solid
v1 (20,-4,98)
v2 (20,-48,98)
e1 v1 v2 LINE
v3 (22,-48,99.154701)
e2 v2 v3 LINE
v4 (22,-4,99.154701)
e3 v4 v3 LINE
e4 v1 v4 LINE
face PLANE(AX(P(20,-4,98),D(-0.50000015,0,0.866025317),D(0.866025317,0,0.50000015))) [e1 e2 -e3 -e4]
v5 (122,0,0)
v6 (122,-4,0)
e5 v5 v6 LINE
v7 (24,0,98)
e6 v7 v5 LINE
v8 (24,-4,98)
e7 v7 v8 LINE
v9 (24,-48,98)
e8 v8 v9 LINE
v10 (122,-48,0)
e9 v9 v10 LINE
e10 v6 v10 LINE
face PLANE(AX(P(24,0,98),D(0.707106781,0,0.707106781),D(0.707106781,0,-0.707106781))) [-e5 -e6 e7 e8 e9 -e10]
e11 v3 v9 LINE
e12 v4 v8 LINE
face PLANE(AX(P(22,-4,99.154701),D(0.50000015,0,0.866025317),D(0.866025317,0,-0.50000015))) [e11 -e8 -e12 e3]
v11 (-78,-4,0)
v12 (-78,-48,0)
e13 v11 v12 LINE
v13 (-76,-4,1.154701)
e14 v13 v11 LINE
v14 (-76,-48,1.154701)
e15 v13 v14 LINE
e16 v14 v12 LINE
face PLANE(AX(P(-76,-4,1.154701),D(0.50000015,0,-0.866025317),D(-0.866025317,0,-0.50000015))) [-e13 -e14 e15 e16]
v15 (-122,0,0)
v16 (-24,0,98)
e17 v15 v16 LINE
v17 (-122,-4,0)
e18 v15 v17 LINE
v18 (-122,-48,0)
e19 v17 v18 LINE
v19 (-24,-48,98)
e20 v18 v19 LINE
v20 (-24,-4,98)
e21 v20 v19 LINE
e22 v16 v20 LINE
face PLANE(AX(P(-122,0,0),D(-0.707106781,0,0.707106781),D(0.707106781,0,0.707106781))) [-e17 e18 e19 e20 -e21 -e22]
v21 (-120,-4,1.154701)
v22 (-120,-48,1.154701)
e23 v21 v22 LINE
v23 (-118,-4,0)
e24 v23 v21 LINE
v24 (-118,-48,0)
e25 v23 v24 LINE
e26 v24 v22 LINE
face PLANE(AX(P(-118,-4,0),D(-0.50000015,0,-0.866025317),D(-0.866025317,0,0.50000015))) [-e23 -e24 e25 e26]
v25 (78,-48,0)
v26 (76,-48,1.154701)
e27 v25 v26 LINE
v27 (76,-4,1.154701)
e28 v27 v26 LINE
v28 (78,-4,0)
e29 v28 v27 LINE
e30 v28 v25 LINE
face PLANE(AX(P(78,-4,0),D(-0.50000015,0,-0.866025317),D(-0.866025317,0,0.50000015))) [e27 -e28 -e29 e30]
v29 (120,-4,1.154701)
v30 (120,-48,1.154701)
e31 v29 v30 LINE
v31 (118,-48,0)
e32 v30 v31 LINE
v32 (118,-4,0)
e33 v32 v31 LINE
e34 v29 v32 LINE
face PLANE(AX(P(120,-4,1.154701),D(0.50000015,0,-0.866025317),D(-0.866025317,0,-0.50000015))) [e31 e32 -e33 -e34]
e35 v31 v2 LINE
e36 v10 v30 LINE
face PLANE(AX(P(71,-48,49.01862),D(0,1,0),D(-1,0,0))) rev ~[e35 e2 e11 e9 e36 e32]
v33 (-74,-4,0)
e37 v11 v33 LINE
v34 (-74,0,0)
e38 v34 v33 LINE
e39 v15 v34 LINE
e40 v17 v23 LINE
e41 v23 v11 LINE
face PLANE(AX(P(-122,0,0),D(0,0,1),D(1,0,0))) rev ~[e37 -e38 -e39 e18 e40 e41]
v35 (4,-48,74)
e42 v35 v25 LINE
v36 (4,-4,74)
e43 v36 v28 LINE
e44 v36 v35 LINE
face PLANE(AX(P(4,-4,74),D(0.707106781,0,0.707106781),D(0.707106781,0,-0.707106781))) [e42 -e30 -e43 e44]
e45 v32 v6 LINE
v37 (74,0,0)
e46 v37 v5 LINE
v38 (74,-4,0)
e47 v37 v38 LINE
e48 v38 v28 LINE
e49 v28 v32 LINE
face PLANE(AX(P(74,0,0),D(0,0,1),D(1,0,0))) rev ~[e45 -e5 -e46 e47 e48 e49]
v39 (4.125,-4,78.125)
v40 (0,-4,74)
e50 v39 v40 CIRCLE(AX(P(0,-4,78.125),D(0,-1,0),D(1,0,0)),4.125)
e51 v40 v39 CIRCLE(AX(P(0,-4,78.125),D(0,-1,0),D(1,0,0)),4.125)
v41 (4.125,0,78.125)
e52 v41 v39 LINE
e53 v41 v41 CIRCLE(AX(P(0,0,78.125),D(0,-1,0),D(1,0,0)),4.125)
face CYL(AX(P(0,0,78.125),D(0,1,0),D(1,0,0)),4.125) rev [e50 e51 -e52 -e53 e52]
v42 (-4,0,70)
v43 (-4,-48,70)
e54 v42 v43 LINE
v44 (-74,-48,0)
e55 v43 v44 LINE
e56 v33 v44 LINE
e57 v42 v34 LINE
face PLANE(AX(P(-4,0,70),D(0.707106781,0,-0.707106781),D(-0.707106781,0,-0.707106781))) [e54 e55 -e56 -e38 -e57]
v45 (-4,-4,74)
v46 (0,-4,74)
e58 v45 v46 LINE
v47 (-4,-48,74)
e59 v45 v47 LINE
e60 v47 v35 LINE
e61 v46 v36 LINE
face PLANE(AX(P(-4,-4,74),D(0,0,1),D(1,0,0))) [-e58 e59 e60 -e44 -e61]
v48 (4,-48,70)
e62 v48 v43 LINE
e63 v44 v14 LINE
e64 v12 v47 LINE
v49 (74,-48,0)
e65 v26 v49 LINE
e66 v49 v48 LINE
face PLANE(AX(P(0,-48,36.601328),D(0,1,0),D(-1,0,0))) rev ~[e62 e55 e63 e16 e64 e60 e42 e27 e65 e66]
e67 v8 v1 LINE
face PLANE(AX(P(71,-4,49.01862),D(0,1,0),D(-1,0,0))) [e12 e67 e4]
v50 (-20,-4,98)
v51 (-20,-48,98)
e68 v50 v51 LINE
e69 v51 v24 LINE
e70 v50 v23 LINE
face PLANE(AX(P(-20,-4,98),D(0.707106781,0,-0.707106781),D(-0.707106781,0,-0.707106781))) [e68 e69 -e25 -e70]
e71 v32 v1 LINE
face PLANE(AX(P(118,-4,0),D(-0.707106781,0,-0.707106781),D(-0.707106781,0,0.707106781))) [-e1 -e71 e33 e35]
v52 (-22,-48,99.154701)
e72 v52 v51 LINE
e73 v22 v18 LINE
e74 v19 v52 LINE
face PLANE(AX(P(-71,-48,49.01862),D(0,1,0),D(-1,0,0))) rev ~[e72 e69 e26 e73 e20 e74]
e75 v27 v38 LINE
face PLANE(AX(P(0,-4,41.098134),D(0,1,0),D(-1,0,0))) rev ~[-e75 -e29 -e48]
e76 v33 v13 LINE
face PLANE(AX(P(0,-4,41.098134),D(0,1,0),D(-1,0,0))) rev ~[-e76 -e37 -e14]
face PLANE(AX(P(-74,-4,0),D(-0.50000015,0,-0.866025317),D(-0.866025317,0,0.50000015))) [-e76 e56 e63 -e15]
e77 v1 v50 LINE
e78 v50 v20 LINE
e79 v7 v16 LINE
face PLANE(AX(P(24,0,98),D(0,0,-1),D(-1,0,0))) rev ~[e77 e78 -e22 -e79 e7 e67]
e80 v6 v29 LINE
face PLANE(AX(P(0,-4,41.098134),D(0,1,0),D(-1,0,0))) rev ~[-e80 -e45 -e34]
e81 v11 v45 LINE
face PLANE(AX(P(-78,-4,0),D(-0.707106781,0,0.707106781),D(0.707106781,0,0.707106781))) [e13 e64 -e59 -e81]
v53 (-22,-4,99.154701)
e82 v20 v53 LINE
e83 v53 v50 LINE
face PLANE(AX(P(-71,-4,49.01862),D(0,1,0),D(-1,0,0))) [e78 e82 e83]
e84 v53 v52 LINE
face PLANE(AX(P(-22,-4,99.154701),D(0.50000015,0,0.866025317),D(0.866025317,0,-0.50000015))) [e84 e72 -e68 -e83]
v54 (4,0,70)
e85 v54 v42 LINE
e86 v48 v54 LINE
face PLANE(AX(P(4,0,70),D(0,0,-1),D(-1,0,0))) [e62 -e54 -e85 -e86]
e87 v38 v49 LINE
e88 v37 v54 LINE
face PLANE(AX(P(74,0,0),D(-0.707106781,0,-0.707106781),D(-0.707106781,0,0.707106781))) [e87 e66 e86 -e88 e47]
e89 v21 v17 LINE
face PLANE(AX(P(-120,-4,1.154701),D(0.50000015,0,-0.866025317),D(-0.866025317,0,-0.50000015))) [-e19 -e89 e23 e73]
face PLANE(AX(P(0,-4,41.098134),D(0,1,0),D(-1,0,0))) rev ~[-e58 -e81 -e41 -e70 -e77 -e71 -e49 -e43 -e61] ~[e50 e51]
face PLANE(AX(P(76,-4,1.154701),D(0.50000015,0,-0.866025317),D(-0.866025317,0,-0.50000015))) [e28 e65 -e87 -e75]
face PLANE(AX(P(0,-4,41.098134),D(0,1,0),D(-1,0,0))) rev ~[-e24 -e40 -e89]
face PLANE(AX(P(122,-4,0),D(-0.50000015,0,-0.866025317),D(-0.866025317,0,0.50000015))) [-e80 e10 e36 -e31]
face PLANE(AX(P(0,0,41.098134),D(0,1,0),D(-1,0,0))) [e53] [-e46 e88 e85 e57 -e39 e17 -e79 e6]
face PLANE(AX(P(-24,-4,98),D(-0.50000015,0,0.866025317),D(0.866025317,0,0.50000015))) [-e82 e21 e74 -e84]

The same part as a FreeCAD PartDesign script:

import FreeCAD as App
import Part
import Sketcher

V = App.Vector
Q = App.Units.Quantity


def add_polygon(sketch, points):
    """Adds a closed chain of lines whose ends are joined by coincident constraints."""
    first, n = sketch.GeometryCount, len(points)
    for a, b in zip(points, points[1:] + points[:1]):
        sketch.addGeometry(Part.LineSegment(App.Vector(*a, 0), App.Vector(*b, 0)), False)
    for i in range(n):
        sketch.addConstraint(Sketcher.Constraint("Coincident", first + i, 2, first + (i + 1) % n, 1))

doc = App.newDocument("Part")
body = doc.addObject("PartDesign::Body", "Body")

# Sketch on XZ plane
sketch1 = doc.addObject("Sketcher::SketchObject", "Sketch")
body.addObject(sketch1)
sketch1.AttachmentSupport = (doc.XZ_Plane, [""])
sketch1.MapMode = "FlatFace"
add_polygon(sketch1, [(24, 98), (-24, 98), (-122, 0), (-74, 0), (-4, 70), (4, 70), (74, 0), (122, 0)])  # lines 0-7
sketch1.addGeometry(Part.Circle(V(0, 78.1, 0), V(0, 0, 1), 4.1), False)  # 8
sketch1.addConstraint(Sketcher.Constraint("Horizontal", 0))
sketch1.addConstraint(Sketcher.Constraint("Horizontal", 2))
sketch1.addConstraint(Sketcher.Constraint("Horizontal", 4))
sketch1.addConstraint(Sketcher.Constraint("Horizontal", 6))
sketch1.addConstraint(Sketcher.Constraint("Symmetric", 2, 2, 5, 2, -1, 1))
sketch1.addConstraint(Sketcher.Constraint("Symmetric", 1, 2, 6, 2, -2))
sketch1.addConstraint(Sketcher.Constraint("PointOnObject", 8, 3, -2))
sketch1.addConstraint(Sketcher.Constraint("Parallel", 1, 3))
sketch1.addConstraint(Sketcher.Constraint("Perpendicular", 3, 5))
sketch1.addConstraint(Sketcher.Constraint("Parallel", 5, 7))
sketch1.addConstraint(Sketcher.Constraint("Equal", 0, 2))
sketch1.addConstraint(Sketcher.Constraint("Equal", 3, 5))
sketch1.addConstraint(Sketcher.Constraint("Diameter", 8, 8.25))
sketch1.addConstraint(Sketcher.Constraint("DistanceX", 0, 2, 0, 1, 48.0))
sketch1.addConstraint(Sketcher.Constraint("DistanceX", 4, 1, 4, 2, 8.0))
sketch1.addConstraint(Sketcher.Constraint("DistanceY", -1, 1, 0, 2, 98.0))
sketch1.addConstraint(Sketcher.Constraint("DistanceY", -1, 1, 8, 3, 78.125))
pad1 = doc.addObject("PartDesign::Pad", "Pad")
body.addObject(pad1)
pad1.Profile = sketch1
pad1.Length = 4
body2 = doc.addObject("PartDesign::Body", "Body001")
body2.AllowCompound = True

# Sketch on XZ plane
sketch2 = doc.addObject("Sketcher::SketchObject", "Sketch001")
body2.addObject(sketch2)
sketch2.AttachmentSupport = (doc.getObject("XZ_Plane001"), [""])
sketch2.MapMode = "FlatFace"
add_polygon(sketch2, [(-118, 0), (-20, 98), (-22, 99.2), (-24, 98), (-122, 0), (-120, 1.2)])  # lines 0-5
add_polygon(sketch2, [(20, 98), (118, 0), (120, 1.2), (122, 0), (24, 98), (22, 99.2)])  # lines 6-11
add_polygon(sketch2, [(-74, 0), (-4, 70), (4, 70), (74, 0), (76, 1.2), (78, 0), (4, 74), (-4, 74), (-78, 0), (-76, 1.2)])  # lines 12-21
sketch2.addConstraint(Sketcher.Constraint("Horizontal", 13))
sketch2.addConstraint(Sketcher.Constraint("Horizontal", 18))
sketch2.addConstraint(Sketcher.Constraint("Symmetric", 5, 2, 6, 2, -1, 1))
sketch2.addConstraint(Sketcher.Constraint("Symmetric", 3, 2, 8, 2, -1, 1))
sketch2.addConstraint(Sketcher.Constraint("Symmetric", 16, 2, 19, 2, -1, 1))
sketch2.addConstraint(Sketcher.Constraint("Symmetric", 14, 2, 21, 2, -1, 1))
sketch2.addConstraint(Sketcher.Constraint("Symmetric", 4, 2, 7, 2, -2))
sketch2.addConstraint(Sketcher.Constraint("Symmetric", 2, 2, 9, 2, -2))
sketch2.addConstraint(Sketcher.Constraint("Symmetric", 1, 2, 10, 2, -2))
sketch2.addConstraint(Sketcher.Constraint("Symmetric", 0, 2, 11, 2, -2))
sketch2.addConstraint(Sketcher.Constraint("Symmetric", 15, 2, 20, 2, -2))
sketch2.addConstraint(Sketcher.Constraint("PointOnObject", 3, 2, -1))
sketch2.addConstraint(Sketcher.Constraint("PointOnObject", 5, 2, -1))
sketch2.addConstraint(Sketcher.Constraint("PointOnObject", 14, 2, -1))
sketch2.addConstraint(Sketcher.Constraint("PointOnObject", 16, 2, -1))
sketch2.addConstraint(Sketcher.Constraint("Parallel", 0, 3))
sketch2.addConstraint(Sketcher.Constraint("Parallel", 2, 4))
sketch2.addConstraint(Sketcher.Constraint("Parallel", 1, 5))
sketch2.addConstraint(Sketcher.Constraint("Perpendicular", 3, 6))
sketch2.addConstraint(Sketcher.Constraint("Parallel", 4, 7))
sketch2.addConstraint(Sketcher.Constraint("Perpendicular", 9, 12))
sketch2.addConstraint(Sketcher.Constraint("Perpendicular", 12, 14))
sketch2.addConstraint(Sketcher.Constraint("Parallel", 11, 15))
sketch2.addConstraint(Sketcher.Constraint("Parallel", 10, 16))
sketch2.addConstraint(Sketcher.Constraint("Parallel", 14, 17))
sketch2.addConstraint(Sketcher.Constraint("Perpendicular", 17, 19))
sketch2.addConstraint(Sketcher.Constraint("Horizontal", 0, 2, 2, 2))
sketch2.addConstraint(Sketcher.Constraint("Horizontal", 7, 2, 15, 2))
sketch2.addConstraint(Sketcher.Constraint("Vertical", 13, 2, 17, 2))
sketch2.addConstraint(Sketcher.Constraint("DistanceX", 13, 1, 13, 2, 8.0))
sketch2.addConstraint(Sketcher.Constraint("Angle", 1, Q("149.99999 deg")))
sketch2.addConstraint(Sketcher.Constraint("DistanceX", 0, 2, -1, 1, 20.0))
sketch2.addConstraint(Sketcher.Constraint("DistanceY", -1, 1, 0, 2, 98.0))
sketch2.addConstraint(Sketcher.Constraint("DistanceX", 1, 2, -1, 1, 22.0))
sketch2.addConstraint(Sketcher.Constraint("DistanceY", -1, 1, 12, 2, 70.0))
pad2 = doc.addObject("PartDesign::Pad", "Pad001")
body2.addObject(pad2)
pad2.Profile = sketch2
pad2.Length = 44
body3 = doc.addObject("PartDesign::Body", "Body002")
body3.AllowCompound = True
doc.recompute()

body2.Placement = App.Placement(V(0, -4, 0), App.Rotation(V(0, 0, 1), 0))
boolean = doc.addObject("PartDesign::Boolean", "Boolean")
body3.addObject(boolean)
boolean.Type = "Fuse"
boolean.addObjects([body2])
doc.recompute()

boolean2 = doc.addObject("PartDesign::Boolean", "Boolean001")
body3.addObject(boolean2)
boolean2.Type = "Fuse"
boolean2.addObjects([body])

doc.recompute()
